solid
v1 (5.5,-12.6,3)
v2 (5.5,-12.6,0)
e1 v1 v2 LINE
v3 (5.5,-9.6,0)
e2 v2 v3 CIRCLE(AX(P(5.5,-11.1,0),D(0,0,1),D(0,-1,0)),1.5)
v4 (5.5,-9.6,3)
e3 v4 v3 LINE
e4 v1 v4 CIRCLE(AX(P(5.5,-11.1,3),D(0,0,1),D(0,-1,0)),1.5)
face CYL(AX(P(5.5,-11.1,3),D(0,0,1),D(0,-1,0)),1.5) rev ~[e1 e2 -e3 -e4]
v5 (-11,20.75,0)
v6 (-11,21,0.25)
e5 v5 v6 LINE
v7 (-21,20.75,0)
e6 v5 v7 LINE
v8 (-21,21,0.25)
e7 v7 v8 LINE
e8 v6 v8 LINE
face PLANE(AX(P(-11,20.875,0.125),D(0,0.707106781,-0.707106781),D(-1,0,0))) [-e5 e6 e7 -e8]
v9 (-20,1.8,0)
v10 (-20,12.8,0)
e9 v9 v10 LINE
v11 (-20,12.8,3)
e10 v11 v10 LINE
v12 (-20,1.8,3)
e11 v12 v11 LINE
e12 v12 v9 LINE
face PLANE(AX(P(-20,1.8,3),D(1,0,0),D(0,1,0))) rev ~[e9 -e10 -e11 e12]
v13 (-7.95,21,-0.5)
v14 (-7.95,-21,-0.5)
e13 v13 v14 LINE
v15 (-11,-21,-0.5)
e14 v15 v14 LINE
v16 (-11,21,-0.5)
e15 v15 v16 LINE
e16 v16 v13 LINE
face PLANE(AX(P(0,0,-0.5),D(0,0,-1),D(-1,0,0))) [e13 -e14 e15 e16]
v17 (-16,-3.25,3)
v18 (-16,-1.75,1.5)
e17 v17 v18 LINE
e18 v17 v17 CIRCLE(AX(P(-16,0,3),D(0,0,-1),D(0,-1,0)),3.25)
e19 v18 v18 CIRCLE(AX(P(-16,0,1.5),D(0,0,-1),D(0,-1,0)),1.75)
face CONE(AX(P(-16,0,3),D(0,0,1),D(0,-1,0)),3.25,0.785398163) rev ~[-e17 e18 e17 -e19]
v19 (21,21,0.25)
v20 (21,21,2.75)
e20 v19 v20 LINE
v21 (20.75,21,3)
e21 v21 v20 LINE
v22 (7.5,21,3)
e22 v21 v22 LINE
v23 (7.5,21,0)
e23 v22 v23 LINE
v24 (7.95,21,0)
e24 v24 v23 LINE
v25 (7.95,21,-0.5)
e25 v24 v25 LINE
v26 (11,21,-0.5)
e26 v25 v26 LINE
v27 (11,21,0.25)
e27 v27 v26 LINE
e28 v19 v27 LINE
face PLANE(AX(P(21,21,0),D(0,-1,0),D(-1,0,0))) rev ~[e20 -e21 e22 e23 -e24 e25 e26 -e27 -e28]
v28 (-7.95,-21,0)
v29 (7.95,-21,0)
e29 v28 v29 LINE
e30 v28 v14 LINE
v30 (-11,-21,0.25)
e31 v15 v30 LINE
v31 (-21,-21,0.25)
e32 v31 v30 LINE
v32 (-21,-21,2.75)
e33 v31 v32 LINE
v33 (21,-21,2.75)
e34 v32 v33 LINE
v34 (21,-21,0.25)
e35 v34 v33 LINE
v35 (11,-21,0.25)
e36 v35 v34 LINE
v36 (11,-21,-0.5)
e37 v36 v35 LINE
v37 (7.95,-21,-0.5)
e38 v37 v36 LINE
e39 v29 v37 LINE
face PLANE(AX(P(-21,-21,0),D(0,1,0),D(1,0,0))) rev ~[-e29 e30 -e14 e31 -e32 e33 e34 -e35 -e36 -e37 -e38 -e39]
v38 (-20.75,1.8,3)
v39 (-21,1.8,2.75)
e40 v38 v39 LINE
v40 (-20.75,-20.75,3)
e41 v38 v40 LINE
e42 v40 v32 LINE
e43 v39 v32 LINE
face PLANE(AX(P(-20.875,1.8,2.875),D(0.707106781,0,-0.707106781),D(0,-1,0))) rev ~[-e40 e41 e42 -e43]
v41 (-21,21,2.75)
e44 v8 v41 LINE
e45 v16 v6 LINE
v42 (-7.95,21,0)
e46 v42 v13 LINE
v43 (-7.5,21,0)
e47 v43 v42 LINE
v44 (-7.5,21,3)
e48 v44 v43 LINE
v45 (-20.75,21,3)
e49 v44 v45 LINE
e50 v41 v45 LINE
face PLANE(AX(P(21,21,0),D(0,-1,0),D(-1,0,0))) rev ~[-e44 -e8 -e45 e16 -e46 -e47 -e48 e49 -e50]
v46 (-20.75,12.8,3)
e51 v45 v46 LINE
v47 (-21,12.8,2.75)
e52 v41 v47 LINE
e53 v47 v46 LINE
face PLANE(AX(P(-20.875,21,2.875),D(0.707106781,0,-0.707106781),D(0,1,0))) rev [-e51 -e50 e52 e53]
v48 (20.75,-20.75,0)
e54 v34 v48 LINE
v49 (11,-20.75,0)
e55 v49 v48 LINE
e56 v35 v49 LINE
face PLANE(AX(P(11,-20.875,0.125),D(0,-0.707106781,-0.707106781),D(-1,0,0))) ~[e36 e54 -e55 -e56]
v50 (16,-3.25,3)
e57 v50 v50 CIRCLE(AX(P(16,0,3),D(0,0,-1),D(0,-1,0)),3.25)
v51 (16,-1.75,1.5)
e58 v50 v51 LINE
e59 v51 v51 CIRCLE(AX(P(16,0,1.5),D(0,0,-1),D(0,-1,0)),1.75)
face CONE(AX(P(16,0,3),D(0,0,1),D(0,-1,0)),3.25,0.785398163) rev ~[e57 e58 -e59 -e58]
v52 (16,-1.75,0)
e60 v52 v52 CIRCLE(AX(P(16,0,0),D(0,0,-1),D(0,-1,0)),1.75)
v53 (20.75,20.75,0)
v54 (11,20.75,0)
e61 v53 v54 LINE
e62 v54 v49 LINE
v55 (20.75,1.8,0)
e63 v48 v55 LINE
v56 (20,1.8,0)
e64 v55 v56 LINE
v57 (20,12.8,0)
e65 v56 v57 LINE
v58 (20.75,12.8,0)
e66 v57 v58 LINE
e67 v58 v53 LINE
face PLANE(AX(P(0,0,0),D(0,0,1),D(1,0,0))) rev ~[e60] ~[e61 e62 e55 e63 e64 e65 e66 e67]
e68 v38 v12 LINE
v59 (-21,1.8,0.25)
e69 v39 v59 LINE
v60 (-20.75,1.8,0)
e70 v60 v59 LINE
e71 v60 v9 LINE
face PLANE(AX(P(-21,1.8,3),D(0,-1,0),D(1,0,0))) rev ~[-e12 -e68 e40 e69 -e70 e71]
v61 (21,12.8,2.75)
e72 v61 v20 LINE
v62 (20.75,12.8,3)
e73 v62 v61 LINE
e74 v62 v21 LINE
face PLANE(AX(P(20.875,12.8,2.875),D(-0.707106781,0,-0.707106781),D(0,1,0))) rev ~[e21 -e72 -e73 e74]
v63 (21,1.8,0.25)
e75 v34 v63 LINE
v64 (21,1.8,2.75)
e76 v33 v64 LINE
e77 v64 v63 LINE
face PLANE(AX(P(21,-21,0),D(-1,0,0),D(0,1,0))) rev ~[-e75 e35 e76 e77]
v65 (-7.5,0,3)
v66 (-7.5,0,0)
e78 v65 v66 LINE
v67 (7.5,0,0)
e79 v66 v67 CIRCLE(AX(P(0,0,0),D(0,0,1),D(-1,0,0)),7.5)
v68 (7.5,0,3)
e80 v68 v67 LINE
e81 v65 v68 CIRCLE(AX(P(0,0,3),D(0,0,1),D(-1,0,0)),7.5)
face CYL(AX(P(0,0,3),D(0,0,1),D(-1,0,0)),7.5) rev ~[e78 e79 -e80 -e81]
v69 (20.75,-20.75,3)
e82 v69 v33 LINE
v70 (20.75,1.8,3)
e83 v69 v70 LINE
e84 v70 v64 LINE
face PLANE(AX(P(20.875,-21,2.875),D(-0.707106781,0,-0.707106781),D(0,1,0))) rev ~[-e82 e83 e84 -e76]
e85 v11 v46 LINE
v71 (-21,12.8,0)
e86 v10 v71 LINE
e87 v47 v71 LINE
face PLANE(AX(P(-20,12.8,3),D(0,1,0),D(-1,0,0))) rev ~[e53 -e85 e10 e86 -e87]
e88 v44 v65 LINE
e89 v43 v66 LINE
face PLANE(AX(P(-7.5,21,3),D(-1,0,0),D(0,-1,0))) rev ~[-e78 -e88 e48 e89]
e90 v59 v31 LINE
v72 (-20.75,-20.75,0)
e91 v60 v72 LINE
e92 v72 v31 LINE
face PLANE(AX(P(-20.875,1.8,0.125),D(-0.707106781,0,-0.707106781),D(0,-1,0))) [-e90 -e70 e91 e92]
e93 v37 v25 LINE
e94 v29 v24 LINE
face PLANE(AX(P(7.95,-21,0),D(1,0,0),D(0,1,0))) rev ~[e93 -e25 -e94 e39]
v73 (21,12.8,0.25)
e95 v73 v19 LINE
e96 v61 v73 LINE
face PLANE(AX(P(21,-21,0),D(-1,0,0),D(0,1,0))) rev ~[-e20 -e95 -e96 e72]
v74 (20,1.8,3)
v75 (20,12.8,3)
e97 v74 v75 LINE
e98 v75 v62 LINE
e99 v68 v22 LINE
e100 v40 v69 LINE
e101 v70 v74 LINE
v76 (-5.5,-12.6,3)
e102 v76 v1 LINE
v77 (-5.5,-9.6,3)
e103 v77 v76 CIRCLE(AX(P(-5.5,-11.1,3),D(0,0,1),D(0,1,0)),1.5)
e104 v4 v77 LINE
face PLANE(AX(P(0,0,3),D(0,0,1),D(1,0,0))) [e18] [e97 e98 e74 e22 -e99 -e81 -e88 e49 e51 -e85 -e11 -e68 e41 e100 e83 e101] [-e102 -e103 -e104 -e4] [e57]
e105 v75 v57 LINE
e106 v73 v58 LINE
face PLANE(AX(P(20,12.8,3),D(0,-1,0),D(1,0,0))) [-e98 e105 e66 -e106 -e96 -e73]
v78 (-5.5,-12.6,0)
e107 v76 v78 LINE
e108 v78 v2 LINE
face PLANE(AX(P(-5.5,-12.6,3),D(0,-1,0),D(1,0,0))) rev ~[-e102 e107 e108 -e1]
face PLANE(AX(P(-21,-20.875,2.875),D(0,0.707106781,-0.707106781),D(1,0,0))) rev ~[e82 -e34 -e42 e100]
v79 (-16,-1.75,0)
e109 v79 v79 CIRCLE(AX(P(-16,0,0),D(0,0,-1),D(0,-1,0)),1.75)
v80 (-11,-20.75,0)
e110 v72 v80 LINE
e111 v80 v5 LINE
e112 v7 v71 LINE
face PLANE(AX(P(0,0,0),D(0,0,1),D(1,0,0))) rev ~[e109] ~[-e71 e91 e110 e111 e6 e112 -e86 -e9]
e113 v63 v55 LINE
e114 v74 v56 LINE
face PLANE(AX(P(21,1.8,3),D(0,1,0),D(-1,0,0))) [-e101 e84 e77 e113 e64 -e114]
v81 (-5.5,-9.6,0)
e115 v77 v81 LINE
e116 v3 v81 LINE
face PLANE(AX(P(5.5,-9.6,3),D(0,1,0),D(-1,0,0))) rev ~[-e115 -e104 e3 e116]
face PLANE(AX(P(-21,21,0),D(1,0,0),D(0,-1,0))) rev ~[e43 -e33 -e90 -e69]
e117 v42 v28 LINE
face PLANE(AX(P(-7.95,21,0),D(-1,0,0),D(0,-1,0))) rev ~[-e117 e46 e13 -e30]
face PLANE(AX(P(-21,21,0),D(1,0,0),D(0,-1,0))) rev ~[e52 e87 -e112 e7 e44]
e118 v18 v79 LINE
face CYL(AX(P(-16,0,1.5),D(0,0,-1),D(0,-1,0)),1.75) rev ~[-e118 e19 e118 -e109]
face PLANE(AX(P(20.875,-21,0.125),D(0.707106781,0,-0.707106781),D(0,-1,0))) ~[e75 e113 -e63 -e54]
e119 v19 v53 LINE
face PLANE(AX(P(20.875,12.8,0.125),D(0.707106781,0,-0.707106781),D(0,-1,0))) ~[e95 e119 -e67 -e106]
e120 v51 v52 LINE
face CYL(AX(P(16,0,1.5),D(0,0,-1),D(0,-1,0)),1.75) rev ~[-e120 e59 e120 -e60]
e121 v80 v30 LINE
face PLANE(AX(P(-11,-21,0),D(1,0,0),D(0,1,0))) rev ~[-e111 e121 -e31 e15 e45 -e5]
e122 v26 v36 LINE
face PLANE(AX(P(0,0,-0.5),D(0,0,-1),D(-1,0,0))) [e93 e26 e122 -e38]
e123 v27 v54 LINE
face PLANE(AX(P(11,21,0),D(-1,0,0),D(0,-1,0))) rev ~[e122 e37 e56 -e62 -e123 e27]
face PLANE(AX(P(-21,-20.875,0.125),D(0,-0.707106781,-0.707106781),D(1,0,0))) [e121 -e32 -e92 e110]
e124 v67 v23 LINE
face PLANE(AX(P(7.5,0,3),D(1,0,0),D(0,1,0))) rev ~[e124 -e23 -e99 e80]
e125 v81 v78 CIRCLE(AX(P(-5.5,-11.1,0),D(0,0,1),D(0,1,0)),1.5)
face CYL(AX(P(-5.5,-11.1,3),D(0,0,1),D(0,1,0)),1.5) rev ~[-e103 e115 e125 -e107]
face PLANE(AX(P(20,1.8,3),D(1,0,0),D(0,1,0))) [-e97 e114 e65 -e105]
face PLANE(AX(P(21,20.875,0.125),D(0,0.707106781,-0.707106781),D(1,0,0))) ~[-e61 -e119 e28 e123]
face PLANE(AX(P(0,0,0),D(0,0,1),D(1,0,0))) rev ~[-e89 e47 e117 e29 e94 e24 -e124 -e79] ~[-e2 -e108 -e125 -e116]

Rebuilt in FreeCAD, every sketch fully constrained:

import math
import FreeCAD as App
import Part
import Sketcher

V = App.Vector
Q = App.Units.Quantity


def edges_at(feature, points):
    """Names of the edges that pass closest to the given points."""
    edges = feature.Shape.Edges
    near = lambda p: min(range(len(edges)), key=lambda i: edges[i].distToShape(Part.Vertex(*p))[0])
    return sorted({f"Edge{near(p) + 1}" for p in points})

doc = App.newDocument("Part")
body = doc.addObject("PartDesign::Body", "Body")

# Sketch on XY plane
sketch1 = body.newObject("Sketcher::SketchObject", "Sketch")
sketch1.AttachmentSupport = (doc.getObject("XY_Plane"), [""])
sketch1.MapMode = "FlatFace"
sketch1.addGeometry(Part.LineSegment(V(-21, 21, 0), V(-21, -21, 0)), False)
sketch1.addGeometry(Part.LineSegment(V(-21, -21, 0), V(21, -21, 0)), False)
sketch1.addGeometry(Part.LineSegment(V(21, -21, 0), V(21, 21, 0)), False)
sketch1.addGeometry(Part.LineSegment(V(21, 21, 0), V(-21, 21, 0)), False)
sketch1.addConstraint(Sketcher.Constraint("Coincident", 0, 2, 1, 1))
sketch1.addConstraint(Sketcher.Constraint("Coincident", 1, 2, 2, 1))
sketch1.addConstraint(Sketcher.Constraint("Coincident", 2, 2, 3, 1))
sketch1.addConstraint(Sketcher.Constraint("Coincident", 3, 2, 0, 1))
sketch1.addConstraint(Sketcher.Constraint("Vertical", 0))
sketch1.addConstraint(Sketcher.Constraint("Horizontal", 1))
sketch1.addConstraint(Sketcher.Constraint("Vertical", 2))
sketch1.addConstraint(Sketcher.Constraint("Horizontal", 3))
sketch1.addConstraint(Sketcher.Constraint("Symmetric", 0, 2, 2, 2, -1, 1))
sketch1.addConstraint(Sketcher.Constraint("Equal", 3, 0))
sketch1.addConstraint(Sketcher.Constraint("DistanceX", 1, 1, 1, 2, Q("42 mm")))
pad1 = body.newObject("PartDesign::Pad", "Pad")
pad1.Profile = sketch1
pad1.Length = 3

# Sketch on XY plane
sketch2 = body.newObject("Sketcher::SketchObject", "Sketch001")
sketch2.AttachmentSupport = (doc.getObject("XY_Plane"), [""])
sketch2.MapMode = "FlatFace"
sketch2.AttachmentOffset = App.Placement(V(0, 0, 3), App.Rotation())
sketch2.addGeometry(Part.LineSegment(V(-20, 12.8, 0), V(-21, 12.8, 0)), False)
sketch2.addGeometry(Part.LineSegment(V(-21, 12.8, 0), V(-21, 1.8, 0)), False)
sketch2.addGeometry(Part.LineSegment(V(-21, 1.8, 0), V(-20, 1.8, 0)), False)
sketch2.addGeometry(Part.LineSegment(V(-20, 1.8, 0), V(-20, 12.8, 0)), False)
sketch2.addGeometry(Part.LineSegment(V(20, 1.8, 0), V(21, 1.8, 0)), False)
sketch2.addGeometry(Part.LineSegment(V(21, 1.8, 0), V(21, 12.8, 0)), False)
sketch2.addGeometry(Part.LineSegment(V(21, 12.8, 0), V(20, 12.8, 0)), False)
sketch2.addGeometry(Part.LineSegment(V(20, 12.8, 0), V(20, 1.8, 0)), False)
sketch2.addConstraint(Sketcher.Constraint("Coincident", 0, 2, 1, 1))
sketch2.addConstraint(Sketcher.Constraint("Coincident", 1, 2, 2, 1))
sketch2.addConstraint(Sketcher.Constraint("Coincident", 2, 2, 3, 1))
sketch2.addConstraint(Sketcher.Constraint("Coincident", 3, 2, 0, 1))
sketch2.addConstraint(Sketcher.Constraint("Coincident", 4, 2, 5, 1))
sketch2.addConstraint(Sketcher.Constraint("Coincident", 5, 2, 6, 1))
sketch2.addConstraint(Sketcher.Constraint("Coincident", 6, 2, 7, 1))
sketch2.addConstraint(Sketcher.Constraint("Coincident", 7, 2, 4, 1))
sketch2.addConstraint(Sketcher.Constraint("Horizontal", 0))
sketch2.addConstraint(Sketcher.Constraint("Vertical", 1))
sketch2.addConstraint(Sketcher.Constraint("Horizontal", 2))
sketch2.addConstraint(Sketcher.Constraint("Vertical", 3))
sketch2.addConstraint(Sketcher.Constraint("Horizontal", 4))
sketch2.addConstraint(Sketcher.Constraint("Vertical", 5))
sketch2.addConstraint(Sketcher.Constraint("Horizontal", 6))
sketch2.addConstraint(Sketcher.Constraint("Vertical", 7))
sketch2.addConstraint(Sketcher.Constraint("Symmetric", 1, 2, 4, 2, -2))
sketch2.addConstraint(Sketcher.Constraint("Symmetric", 3, 2, 6, 2, -2))
sketch2.addConstraint(Sketcher.Constraint("DistanceY", 1, 2, 1, 1, Q("11 mm")))
sketch2.addConstraint(Sketcher.Constraint("DistanceX", 2, 2, -1, 1, Q("20 mm")))
sketch2.addConstraint(Sketcher.Constraint("DistanceX", 0, 2, 0, 1, Q("1 mm")))
sketch2.addConstraint(Sketcher.Constraint("DistanceY", -1, 1, 0, 2, Q("12.8 mm")))
pocket1 = body.newObject("PartDesign::Pocket", "Pocket")
pocket1.Profile = sketch2
pocket1.Type = "ThroughAll"

# Sketch on XY plane
sketch3 = body.newObject("Sketcher::SketchObject", "Sketch002")
sketch3.AttachmentSupport = (doc.getObject("XY_Plane"), [""])
sketch3.MapMode = "FlatFace"
sketch3.AttachmentOffset = App.Placement(V(0, 0, 3), App.Rotation())
sketch3.addGeometry(Part.ArcOfCircle(Part.Circle(V(0, 0, 0), V(0, 0, 1), 7.5), math.radians(180), math.radians(360)), False)
sketch3.addGeometry(Part.LineSegment(V(7.5, 0, 0), V(7.5, 21, 0)), False)
sketch3.addGeometry(Part.LineSegment(V(7.5, 21, 0), V(-7.5, 21, 0)), False)
sketch3.addGeometry(Part.LineSegment(V(-7.5, 21, 0), V(-7.5, 0, 0)), False)
sketch3.addGeometry(Part.ArcOfCircle(Part.Circle(V(-5.5, -11.1, 0), V(0, 0, 1), 1.5), math.radians(90), math.radians(270)), False)
sketch3.addGeometry(Part.LineSegment(V(-5.5, -12.6, 0), V(5.5, -12.6, 0)), False)
sketch3.addGeometry(Part.ArcOfCircle(Part.Circle(V(5.5, -11.1, 0), V(0, 0, 1), 1.5), math.radians(-90), math.radians(90)), False)
sketch3.addGeometry(Part.LineSegment(V(5.5, -9.6, 0), V(-5.5, -9.6, 0)), False)
sketch3.addConstraint(Sketcher.Constraint("Tangent", 0, 2, 1, 1))
sketch3.addConstraint(Sketcher.Constraint("Coincident", 1, 2, 2, 1))
sketch3.addConstraint(Sketcher.Constraint("Coincident", 2, 2, 3, 1))
sketch3.addConstraint(Sketcher.Constraint("Tangent", 3, 2, 0, 1))
sketch3.addConstraint(Sketcher.Constraint("Tangent", 4, 2, 5, 1))
sketch3.addConstraint(Sketcher.Constraint("Tangent", 5, 2, 6, 1))
sketch3.addConstraint(Sketcher.Constraint("Tangent", 6, 2, 7, 1))
sketch3.addConstraint(Sketcher.Constraint("Tangent", 7, 2, 4, 1))
sketch3.addConstraint(Sketcher.Constraint("Vertical", 1))
sketch3.addConstraint(Sketcher.Constraint("Horizontal", 2))
sketch3.addConstraint(Sketcher.Constraint("Vertical", 3))
sketch3.addConstraint(Sketcher.Constraint("Horizontal", 5))
sketch3.addConstraint(Sketcher.Constraint("Horizontal", 7))
sketch3.addConstraint(Sketcher.Constraint("Coincident", 0, 3, -1, 1))
sketch3.addConstraint(Sketcher.Constraint("Radius", 0, Q("7.5 mm")))
sketch3.addConstraint(Sketcher.Constraint("Radius", 4, Q("1.5 mm")))
sketch3.addConstraint(Sketcher.Constraint("DistanceY", 1, 1, 1, 2, Q("21 mm")))
sketch3.addConstraint(Sketcher.Constraint("DistanceX", 5, 1, 5, 2, Q("11 mm")))
sketch3.addConstraint(Sketcher.Constraint("DistanceX", 6, 3, 0, 2, Q("2 mm")))
sketch3.addConstraint(Sketcher.Constraint("DistanceY", 4, 3, -1, 1, Q("11.1 mm")))
pocket2 = body.newObject("PartDesign::Pocket", "Pocket001")
pocket2.Profile = sketch3
pocket2.Type = "ThroughAll"

# Sketch on XY plane
sketch4 = body.newObject("Sketcher::SketchObject", "Sketch003")
sketch4.AttachmentSupport = (doc.getObject("XY_Plane"), [""])
sketch4.MapMode = "FlatFace"
sketch4.addGeometry(Part.LineSegment(V(11, -21, 0), V(8, -21, 0)), False)
sketch4.addGeometry(Part.LineSegment(V(8, -21, 0), V(8, 21, 0)), False)
sketch4.addGeometry(Part.LineSegment(V(8, 21, 0), V(11, 21, 0)), False)
sketch4.addGeometry(Part.LineSegment(V(11, 21, 0), V(11, -21, 0)), False)
sketch4.addGeometry(Part.LineSegment(V(-8, -21, 0), V(-11, -21, 0)), False)
sketch4.addGeometry(Part.LineSegment(V(-11, -21, 0), V(-11, 21, 0)), False)
sketch4.addGeometry(Part.LineSegment(V(-11, 21, 0), V(-8, 21, 0)), False)
sketch4.addGeometry(Part.LineSegment(V(-8, 21, 0), V(-8, -21, 0)), False)
sketch4.addConstraint(Sketcher.Constraint("Coincident", 0, 2, 1, 1))
sketch4.addConstraint(Sketcher.Constraint("Coincident", 1, 2, 2, 1))
sketch4.addConstraint(Sketcher.Constraint("Coincident", 2, 2, 3, 1))
sketch4.addConstraint(Sketcher.Constraint("Coincident", 3, 2, 0, 1))
sketch4.addConstraint(Sketcher.Constraint("Coincident", 4, 2, 5, 1))
sketch4.addConstraint(Sketcher.Constraint("Coincident", 5, 2, 6, 1))
sketch4.addConstraint(Sketcher.Constraint("Coincident", 6, 2, 7, 1))
sketch4.addConstraint(Sketcher.Constraint("Coincident", 7, 2, 4, 1))
sketch4.addConstraint(Sketcher.Constraint("Horizontal", 0))
sketch4.addConstraint(Sketcher.Constraint("Vertical", 1))
sketch4.addConstraint(Sketcher.Constraint("Horizontal", 2))
sketch4.addConstraint(Sketcher.Constraint("Vertical", 3))
sketch4.addConstraint(Sketcher.Constraint("Horizontal", 4))
sketch4.addConstraint(Sketcher.Constraint("Vertical", 5))
sketch4.addConstraint(Sketcher.Constraint("Horizontal", 6))
sketch4.addConstraint(Sketcher.Constraint("Vertical", 7))
sketch4.addConstraint(Sketcher.Constraint("Symmetric", 2, 2, 4, 2, -1, 1))
sketch4.addConstraint(Sketcher.Constraint("Symmetric", 0, 2, 6, 2, -1, 1))
sketch4.addConstraint(Sketcher.Constraint("Horizontal", 3, 2, 4, 2))
sketch4.addConstraint(Sketcher.Constraint("DistanceX", 0, 2, 0, 1, Q("3.05 mm")))
sketch4.addConstraint(Sketcher.Constraint("DistanceX", 6, 2, 1, 2, Q("15.9 mm")))
sketch4.addConstraint(Sketcher.Constraint("DistanceY", 1, 1, 1, 2, Q("42 mm")))
pad2 = body.newObject("PartDesign::Pad", "Pad001")
pad2.Profile = sketch4
pad2.Length = 0.5
pad2.Reversed = True
doc.recompute()

chamfer = body.newObject("PartDesign::Chamfer", "Chamfer")
chamfer.Base = (pad2, edges_at(pad2, [
    (16, 21, 0),
    (21, 16.9, 0),
    (16, -21, 0),
    (-16, -21, 0),
    (-21, -9.6, 0),
    (-16, 21, 0),
    (21, -9.6, 0),
    (-21, 16.9, 3),
    (-21, -9.6, 3),
    (0, -21, 3),
    (21, -9.6, 3),
    (21, 16.9, 3),
]))
chamfer.Size = 0.25

# Sketch on XY plane
sketch5 = body.newObject("Sketcher::SketchObject", "Sketch004")
sketch5.AttachmentSupport = (doc.getObject("XY_Plane"), [""])
sketch5.MapMode = "FlatFace"
sketch5.AttachmentOffset = App.Placement(V(0, 0, 3), App.Rotation())
sketch5.addGeometry(Part.Circle(V(-16, 0, 0), V(0, 0, 1), 1.8), False)
sketch5.addGeometry(Part.Circle(V(16, 0, 0), V(0, 0, 1), 1.8), False)
sketch5.addConstraint(Sketcher.Constraint("Equal", 0, 1))
sketch5.addConstraint(Sketcher.Constraint("Symmetric", 0, 3, 1, 3, -1, 1))
sketch5.addConstraint(Sketcher.Constraint("PointOnObject", 0, 3, -1))
sketch5.addConstraint(Sketcher.Constraint("Diameter", 0, Q("3.5 mm")))
sketch5.addConstraint(Sketcher.Constraint("DistanceX", 0, 3, -1, 1, Q("16 mm")))
doc.recompute()
hole = body.newObject("PartDesign::Hole", "Hole")
hole.Profile = sketch5
hole.ThreadType = "None"
hole.Diameter = 3.5
hole.DepthType = "ThroughAll"
hole.HoleCutType = "Countersink"
hole.HoleCutDiameter = 6.5
hole.HoleCutCountersinkAngle = 90

doc.recompute()
